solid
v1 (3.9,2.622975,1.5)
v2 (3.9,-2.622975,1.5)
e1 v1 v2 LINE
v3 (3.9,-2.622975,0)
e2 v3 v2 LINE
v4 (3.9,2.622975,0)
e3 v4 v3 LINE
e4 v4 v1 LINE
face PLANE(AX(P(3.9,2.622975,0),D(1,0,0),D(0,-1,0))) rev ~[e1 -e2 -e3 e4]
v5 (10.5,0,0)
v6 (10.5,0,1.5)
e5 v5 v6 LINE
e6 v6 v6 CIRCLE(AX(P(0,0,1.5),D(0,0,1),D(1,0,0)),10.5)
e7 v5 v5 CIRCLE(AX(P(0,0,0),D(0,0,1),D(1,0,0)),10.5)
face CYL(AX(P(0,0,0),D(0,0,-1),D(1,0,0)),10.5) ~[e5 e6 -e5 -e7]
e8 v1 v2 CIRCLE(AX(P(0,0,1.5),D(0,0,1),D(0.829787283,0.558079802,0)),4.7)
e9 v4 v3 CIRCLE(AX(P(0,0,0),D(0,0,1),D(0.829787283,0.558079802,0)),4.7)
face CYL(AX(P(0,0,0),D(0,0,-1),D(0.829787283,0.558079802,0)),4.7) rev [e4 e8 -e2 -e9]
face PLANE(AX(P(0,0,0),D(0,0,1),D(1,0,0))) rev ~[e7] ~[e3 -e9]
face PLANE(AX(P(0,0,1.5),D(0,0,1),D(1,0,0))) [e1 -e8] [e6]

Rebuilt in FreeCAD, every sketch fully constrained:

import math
import FreeCAD as App
import Part
import Sketcher
Q = App.Units.Quantity

doc = App.newDocument("Part")
body = doc.addObject("PartDesign::Body", "Body")

sketch1 = body.newObject("Sketcher::SketchObject", "Sketch")
sketch1.AttachmentSupport = (doc.getObject("XY_Plane"), [""])
sketch1.MapMode = "FlatFace"
sketch1.addGeometry(Part.Circle(App.Vector(0, 0, 0), App.Vector(0, 0, 1), 10.5), False)
sketch1.addGeometry(Part.ArcOfCircle(Part.Circle(App.Vector(0, 0, 0), App.Vector(0, 0, 1), 4.7), math.radians(34), math.radians(326)), False)
sketch1.addGeometry(Part.LineSegment(App.Vector(3.9, 2.6, 0), App.Vector(3.9, -2.6, 0)), False)
sketch1.addConstraint(Sketcher.Constraint("Coincident", 1, 1, 2, 1))
sketch1.addConstraint(Sketcher.Constraint("Coincident", 2, 2, 1, 2))
sketch1.addConstraint(Sketcher.Constraint("Vertical", 2))
sketch1.addConstraint(Sketcher.Constraint("Coincident", 0, 3, -1, 1))
sketch1.addConstraint(Sketcher.Constraint("Coincident", 1, 3, -1, 1))
sketch1.addConstraint(Sketcher.Constraint("Diameter", 0, Q("21 mm")))
sketch1.addConstraint(Sketcher.Constraint("Radius", 1, Q("4.7 mm")))
sketch1.addConstraint(Sketcher.Constraint("DistanceX", -1, 1, 1, 1, Q("3.9 mm")))
pad1 = body.newObject("PartDesign::Pad", "Pad")
pad1.Profile = sketch1
pad1.Length = 1.5

doc.recompute()
